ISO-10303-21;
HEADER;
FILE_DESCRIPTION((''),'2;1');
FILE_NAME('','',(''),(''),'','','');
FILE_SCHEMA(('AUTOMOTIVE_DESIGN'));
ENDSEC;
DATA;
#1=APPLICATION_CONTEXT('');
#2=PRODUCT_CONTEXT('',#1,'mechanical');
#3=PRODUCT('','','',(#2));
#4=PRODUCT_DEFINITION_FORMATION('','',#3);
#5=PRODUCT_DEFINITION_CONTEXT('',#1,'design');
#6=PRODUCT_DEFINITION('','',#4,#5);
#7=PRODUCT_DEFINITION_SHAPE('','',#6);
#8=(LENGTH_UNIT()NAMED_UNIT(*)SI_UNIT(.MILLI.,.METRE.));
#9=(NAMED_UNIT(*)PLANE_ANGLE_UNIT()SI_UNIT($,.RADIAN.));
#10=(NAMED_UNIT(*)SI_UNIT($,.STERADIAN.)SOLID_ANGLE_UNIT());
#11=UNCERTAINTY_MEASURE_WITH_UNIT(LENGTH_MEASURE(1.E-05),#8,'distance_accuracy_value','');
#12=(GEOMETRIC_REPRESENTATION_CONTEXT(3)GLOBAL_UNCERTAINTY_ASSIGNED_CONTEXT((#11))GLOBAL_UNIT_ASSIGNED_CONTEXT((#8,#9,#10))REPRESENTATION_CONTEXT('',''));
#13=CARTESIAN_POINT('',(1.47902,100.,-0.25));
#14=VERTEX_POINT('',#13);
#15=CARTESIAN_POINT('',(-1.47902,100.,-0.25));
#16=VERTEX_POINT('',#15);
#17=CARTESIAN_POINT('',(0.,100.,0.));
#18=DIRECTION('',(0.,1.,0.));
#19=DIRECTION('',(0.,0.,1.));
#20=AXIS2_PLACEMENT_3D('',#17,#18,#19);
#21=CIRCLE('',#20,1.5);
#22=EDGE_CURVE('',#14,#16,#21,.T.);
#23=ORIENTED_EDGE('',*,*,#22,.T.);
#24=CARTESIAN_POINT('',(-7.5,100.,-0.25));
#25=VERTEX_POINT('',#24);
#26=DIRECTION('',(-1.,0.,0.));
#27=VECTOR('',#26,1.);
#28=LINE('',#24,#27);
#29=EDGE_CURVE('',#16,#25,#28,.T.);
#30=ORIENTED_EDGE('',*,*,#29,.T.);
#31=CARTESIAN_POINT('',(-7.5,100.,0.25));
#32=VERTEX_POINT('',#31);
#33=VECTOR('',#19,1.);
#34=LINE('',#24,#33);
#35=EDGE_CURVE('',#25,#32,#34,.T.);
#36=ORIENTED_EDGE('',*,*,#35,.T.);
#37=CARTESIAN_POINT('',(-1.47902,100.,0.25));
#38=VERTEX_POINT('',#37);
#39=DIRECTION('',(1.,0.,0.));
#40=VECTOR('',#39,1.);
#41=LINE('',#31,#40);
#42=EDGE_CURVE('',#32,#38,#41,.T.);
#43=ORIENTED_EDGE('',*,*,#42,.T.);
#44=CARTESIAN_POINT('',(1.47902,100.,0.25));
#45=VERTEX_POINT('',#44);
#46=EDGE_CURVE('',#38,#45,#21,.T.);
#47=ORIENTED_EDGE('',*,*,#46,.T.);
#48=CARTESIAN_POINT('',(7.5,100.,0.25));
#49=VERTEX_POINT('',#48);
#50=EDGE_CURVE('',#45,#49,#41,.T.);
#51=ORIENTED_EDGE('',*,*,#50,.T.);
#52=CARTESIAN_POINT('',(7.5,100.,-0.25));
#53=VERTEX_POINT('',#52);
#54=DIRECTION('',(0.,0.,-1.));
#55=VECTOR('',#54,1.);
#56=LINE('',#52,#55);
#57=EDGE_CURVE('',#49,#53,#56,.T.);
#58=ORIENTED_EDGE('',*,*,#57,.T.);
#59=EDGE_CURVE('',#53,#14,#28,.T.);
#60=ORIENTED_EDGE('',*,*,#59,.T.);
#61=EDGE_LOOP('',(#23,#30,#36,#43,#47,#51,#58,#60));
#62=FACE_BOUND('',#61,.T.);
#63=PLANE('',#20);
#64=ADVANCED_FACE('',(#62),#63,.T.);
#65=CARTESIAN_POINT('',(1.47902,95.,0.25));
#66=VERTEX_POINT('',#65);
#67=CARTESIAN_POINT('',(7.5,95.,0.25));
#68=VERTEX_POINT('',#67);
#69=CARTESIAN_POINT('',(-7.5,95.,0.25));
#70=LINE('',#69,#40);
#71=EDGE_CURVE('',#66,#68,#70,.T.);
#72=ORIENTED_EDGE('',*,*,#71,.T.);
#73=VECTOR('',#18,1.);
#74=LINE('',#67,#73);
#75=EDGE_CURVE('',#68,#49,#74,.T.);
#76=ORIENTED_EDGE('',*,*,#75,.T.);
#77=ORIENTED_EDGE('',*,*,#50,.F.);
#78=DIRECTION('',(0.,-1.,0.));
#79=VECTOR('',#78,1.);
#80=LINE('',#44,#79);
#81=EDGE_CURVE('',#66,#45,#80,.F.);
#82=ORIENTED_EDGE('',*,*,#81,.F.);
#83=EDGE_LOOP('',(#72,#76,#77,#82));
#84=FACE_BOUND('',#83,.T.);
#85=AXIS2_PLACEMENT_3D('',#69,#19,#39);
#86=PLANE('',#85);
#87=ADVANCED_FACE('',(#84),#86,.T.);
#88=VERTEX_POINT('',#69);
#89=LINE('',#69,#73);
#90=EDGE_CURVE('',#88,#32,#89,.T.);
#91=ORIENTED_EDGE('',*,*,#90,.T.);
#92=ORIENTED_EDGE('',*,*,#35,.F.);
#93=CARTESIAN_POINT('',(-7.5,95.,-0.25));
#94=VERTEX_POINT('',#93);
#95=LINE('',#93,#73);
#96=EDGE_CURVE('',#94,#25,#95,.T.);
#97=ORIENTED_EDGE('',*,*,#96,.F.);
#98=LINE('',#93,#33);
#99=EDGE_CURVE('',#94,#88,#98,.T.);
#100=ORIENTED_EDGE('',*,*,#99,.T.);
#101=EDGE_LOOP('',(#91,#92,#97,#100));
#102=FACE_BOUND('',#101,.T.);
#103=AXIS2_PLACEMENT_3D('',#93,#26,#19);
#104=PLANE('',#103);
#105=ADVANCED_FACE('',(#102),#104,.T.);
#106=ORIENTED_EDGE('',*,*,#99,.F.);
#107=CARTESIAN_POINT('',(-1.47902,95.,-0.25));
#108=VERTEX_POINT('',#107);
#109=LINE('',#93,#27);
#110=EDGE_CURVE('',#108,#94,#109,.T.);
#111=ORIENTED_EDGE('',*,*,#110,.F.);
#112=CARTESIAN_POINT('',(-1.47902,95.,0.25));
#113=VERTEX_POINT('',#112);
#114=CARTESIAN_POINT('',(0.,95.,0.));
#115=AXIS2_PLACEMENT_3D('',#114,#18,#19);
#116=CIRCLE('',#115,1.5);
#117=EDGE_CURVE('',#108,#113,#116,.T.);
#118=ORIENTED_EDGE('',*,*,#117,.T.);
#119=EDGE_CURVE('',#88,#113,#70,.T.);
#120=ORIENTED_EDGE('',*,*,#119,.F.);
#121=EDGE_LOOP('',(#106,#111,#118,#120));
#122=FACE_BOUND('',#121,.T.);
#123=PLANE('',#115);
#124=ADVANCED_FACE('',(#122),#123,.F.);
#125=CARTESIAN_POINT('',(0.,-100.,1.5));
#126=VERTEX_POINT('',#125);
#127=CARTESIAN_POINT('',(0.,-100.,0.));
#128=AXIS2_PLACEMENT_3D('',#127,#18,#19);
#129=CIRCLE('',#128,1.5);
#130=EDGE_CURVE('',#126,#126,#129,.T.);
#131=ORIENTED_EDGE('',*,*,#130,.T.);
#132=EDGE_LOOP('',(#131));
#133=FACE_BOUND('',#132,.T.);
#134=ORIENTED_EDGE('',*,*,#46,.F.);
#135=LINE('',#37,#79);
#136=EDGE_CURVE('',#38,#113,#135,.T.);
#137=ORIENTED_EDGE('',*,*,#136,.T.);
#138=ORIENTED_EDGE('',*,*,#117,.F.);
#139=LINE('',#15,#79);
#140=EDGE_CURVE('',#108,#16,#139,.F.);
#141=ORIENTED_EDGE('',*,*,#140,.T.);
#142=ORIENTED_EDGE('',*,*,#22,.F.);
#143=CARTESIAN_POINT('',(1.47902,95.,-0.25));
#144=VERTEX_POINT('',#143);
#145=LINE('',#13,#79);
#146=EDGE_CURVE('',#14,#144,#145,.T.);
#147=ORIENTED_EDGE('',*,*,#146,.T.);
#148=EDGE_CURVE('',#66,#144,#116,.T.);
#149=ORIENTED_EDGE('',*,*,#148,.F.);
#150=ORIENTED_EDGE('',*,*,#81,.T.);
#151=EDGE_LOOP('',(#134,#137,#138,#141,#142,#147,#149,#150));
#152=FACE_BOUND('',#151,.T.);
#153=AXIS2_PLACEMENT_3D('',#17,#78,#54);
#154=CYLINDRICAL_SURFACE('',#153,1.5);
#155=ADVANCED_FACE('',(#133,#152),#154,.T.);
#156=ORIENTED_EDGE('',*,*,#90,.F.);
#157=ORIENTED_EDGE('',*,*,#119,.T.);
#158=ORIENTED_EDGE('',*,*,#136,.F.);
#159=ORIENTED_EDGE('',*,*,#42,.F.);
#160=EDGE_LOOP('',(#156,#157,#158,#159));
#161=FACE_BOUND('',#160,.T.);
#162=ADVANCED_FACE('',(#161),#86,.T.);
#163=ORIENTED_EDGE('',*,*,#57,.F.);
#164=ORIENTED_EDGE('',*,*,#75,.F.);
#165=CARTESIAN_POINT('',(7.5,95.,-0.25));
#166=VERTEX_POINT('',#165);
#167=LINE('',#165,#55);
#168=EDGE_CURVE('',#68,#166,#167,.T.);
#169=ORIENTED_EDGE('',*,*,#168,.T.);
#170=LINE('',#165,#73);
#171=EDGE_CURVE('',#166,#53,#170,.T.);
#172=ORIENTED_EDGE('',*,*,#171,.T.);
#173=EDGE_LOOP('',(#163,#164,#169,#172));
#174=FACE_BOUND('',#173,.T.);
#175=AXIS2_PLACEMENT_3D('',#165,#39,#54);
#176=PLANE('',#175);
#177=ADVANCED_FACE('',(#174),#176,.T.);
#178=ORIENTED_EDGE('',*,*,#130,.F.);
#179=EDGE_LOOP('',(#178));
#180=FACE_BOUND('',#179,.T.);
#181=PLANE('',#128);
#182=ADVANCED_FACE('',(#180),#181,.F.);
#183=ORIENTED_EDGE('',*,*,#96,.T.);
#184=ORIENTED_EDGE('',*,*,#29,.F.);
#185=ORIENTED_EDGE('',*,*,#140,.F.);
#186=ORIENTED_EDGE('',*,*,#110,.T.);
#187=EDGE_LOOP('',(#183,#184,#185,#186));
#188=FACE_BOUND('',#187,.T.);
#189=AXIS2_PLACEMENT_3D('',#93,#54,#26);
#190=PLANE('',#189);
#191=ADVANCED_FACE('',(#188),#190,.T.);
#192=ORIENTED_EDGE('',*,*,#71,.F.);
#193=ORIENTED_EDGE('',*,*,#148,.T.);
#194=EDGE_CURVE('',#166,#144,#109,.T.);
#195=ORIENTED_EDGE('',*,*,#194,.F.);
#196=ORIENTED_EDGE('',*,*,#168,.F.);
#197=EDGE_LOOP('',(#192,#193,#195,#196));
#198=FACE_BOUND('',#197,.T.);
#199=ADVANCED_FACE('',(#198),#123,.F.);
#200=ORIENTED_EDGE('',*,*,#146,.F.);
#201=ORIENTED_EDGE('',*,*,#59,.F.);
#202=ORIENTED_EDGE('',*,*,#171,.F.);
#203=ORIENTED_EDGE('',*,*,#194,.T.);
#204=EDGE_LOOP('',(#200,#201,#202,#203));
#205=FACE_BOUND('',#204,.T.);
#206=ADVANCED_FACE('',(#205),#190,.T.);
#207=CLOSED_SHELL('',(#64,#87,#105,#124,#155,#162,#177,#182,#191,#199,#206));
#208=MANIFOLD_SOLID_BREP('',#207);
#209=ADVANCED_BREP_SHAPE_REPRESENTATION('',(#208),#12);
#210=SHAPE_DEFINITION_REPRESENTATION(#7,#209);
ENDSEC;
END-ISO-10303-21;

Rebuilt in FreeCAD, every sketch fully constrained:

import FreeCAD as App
import Part
import Sketcher

V = App.Vector

doc = App.newDocument("Part")
body = doc.addObject("PartDesign::Body", "Body")

# Sketch on XZ plane
sketch1 = body.newObject("Sketcher::SketchObject", "Sketch")
sketch1.AttachmentSupport = (doc.getObject("XZ_Plane"), [""])
sketch1.MapMode = "FlatFace"
sketch1.addGeometry(Part.Circle(V(0, 0, 0), V(0, 0, 1), 1.5), False)
sketch1.addConstraint(Sketcher.Constraint("Coincident", 0, 3, -1, 1))
sketch1.addConstraint(Sketcher.Constraint("Diameter", 0, 3.0))
pad1 = body.newObject("PartDesign::Pad", "Pad")
pad1.Profile = sketch1
pad1.Length = 200
pad1.Midplane = True

# Sketch on XZ plane
sketch2 = body.newObject("Sketcher::SketchObject", "Sketch001")
sketch2.AttachmentSupport = (doc.getObject("XZ_Plane"), [""])
sketch2.MapMode = "FlatFace"
sketch2.AttachmentOffset = App.Placement(V(0, 0, -100), App.Rotation())
sketch2.addGeometry(Part.LineSegment(V(-7.5, -0.2, 0), V(-7.5, 0.2, 0)), False)
sketch2.addGeometry(Part.LineSegment(V(-7.5, 0.2, 0), V(7.5, 0.2, 0)), False)
sketch2.addGeometry(Part.LineSegment(V(7.5, 0.2, 0), V(7.5, -0.2, 0)), False)
sketch2.addGeometry(Part.LineSegment(V(7.5, -0.2, 0), V(-7.5, -0.2, 0)), False)
sketch2.addConstraint(Sketcher.Constraint("Coincident", 0, 2, 1, 1))
sketch2.addConstraint(Sketcher.Constraint("Coincident", 1, 2, 2, 1))
sketch2.addConstraint(Sketcher.Constraint("Coincident", 2, 2, 3, 1))
sketch2.addConstraint(Sketcher.Constraint("Coincident", 3, 2, 0, 1))
sketch2.addConstraint(Sketcher.Constraint("Vertical", 0))
sketch2.addConstraint(Sketcher.Constraint("Horizontal", 1))
sketch2.addConstraint(Sketcher.Constraint("Vertical", 2))
sketch2.addConstraint(Sketcher.Constraint("Horizontal", 3))
sketch2.addConstraint(Sketcher.Constraint("Symmetric", 0, 2, 2, 2, -1, 1))
sketch2.addConstraint(Sketcher.Constraint("DistanceX", 1, 1, 1, 2, 15.0))
sketch2.addConstraint(Sketcher.Constraint("DistanceY", 0, 1, 0, 2, 0.5))
pad2 = body.newObject("PartDesign::Pad", "Pad001")
pad2.Profile = sketch2
pad2.Length = 5

doc.recompute()
